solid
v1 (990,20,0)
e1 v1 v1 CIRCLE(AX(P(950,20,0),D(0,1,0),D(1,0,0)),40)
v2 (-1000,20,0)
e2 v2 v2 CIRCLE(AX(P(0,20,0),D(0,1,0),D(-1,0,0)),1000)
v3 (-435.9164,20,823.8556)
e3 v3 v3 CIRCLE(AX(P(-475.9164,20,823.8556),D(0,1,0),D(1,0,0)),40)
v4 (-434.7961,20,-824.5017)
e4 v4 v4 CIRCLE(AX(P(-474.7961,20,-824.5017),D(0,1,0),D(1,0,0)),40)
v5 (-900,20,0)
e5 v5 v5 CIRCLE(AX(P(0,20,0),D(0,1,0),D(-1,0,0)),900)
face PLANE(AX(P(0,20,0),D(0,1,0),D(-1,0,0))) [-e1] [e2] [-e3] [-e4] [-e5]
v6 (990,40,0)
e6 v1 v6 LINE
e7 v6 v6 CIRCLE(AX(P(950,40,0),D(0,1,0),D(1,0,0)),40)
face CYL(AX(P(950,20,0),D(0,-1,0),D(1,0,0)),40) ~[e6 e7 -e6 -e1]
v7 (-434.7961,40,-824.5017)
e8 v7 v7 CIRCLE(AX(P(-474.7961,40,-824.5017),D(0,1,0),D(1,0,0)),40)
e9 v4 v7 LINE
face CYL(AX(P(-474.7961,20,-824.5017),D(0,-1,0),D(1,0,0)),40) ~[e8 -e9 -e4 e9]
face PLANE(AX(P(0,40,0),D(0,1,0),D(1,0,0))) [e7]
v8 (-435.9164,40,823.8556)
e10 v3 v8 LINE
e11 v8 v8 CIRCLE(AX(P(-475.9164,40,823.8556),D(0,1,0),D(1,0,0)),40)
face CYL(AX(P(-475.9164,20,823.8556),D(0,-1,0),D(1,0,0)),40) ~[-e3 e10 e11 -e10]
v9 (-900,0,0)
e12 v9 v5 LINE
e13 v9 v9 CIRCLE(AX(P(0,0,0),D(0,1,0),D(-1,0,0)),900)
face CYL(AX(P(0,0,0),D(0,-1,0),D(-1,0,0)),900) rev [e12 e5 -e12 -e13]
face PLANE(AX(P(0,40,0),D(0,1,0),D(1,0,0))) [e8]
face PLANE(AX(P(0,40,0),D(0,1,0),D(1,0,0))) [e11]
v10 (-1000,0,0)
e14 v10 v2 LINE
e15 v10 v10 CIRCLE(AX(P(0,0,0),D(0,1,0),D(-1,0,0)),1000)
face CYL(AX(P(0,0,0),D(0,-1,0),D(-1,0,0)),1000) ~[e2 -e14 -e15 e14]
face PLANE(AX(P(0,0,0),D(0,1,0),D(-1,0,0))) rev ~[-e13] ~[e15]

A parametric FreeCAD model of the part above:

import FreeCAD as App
import Part
import Sketcher

V = App.Vector
Q = App.Units.Quantity

doc = App.newDocument("Part")
params = doc.addObject("Spreadsheet::Sheet", "Params")
for row, (alias, value) in enumerate([
    ("sketch1_diameter", "1800 mm"),
    ("sketch1_diameter2", "2000 mm"),
    ("pad1_length", "20 mm"),
    ("sketch2_diameter", "80 mm"),
    ("pad2_length", "20 mm"),
], start=1):
    params.set(f"A{row}", alias)
    params.set(f"B{row}", "=" + value)
    params.setAlias(f"B{row}", alias)

body = doc.addObject("PartDesign::Body", "Body")

# Sketch on XZ plane
sketch1 = body.newObject("Sketcher::SketchObject", "Sketch")
sketch1.AttachmentSupport = (doc.getObject("XZ_Plane"), [""])
sketch1.MapMode = "FlatFace"
sketch1.addGeometry([
    Part.Circle(V(0, 0, 0), V(0, 0, 1), 1000),
    Part.Circle(V(0, 0, 0), V(0, 0, 1), 900),
], False)
sketch1.addConstraint([
    Sketcher.Constraint("Coincident", 0, 3, -1, 1),
    Sketcher.Constraint("Coincident", 1, 3, -1, 1),
    Sketcher.Constraint("Diameter", 1, Q("1800 mm")),
    Sketcher.Constraint("Diameter", 0, Q("2000 mm")),
])
sketch1.setExpression("Constraints[2]", "Params.sketch1_diameter")
sketch1.setExpression("Constraints[3]", "Params.sketch1_diameter2")
pad1 = body.newObject("PartDesign::Pad", "Pad")
pad1.Profile = sketch1
pad1.setExpression("Length", "Params.pad1_length")
pad1.Reversed = True

# Sketch on XZ plane
sketch2 = body.newObject("Sketcher::SketchObject", "Sketch001")
sketch2.AttachmentSupport = (doc.getObject("XZ_Plane"), [""])
sketch2.MapMode = "FlatFace"
sketch2.AttachmentOffset = App.Placement(V(0, 0, -20), App.Rotation())
sketch2.addGeometry([
    Part.Circle(V(950, 0, 0), V(0, 0, 1), 40),
    Part.Circle(V(-475, -825, 0), V(0, 0, 1), 40),
    Part.Circle(V(-476, 824, 0), V(0, 0, 1), 40),
], False)
sketch2.addConstraint([
    Sketcher.Constraint("Equal", 0, 1),
    Sketcher.Constraint("Equal", 1, 2),
    Sketcher.Constraint("PointOnObject", 0, 3, -1),
    Sketcher.Constraint("Diameter", 0, Q("80 mm")),
    Sketcher.Constraint("DistanceX", -1, 1, 0, 3, Q("950 mm")),
    Sketcher.Constraint("DistanceX", 1, 3, -1, 1, Q("474.796 mm")),
    Sketcher.Constraint("DistanceY", 1, 3, -1, 1, Q("824.5017 mm")),
    Sketcher.Constraint("DistanceX", 2, 3, -1, 1, Q("475.9164 mm")),
    Sketcher.Constraint("DistanceY", -1, 1, 2, 3, Q("823.8556 mm")),
])
sketch2.setExpression("Constraints[3]", "Params.sketch2_diameter")
pad2 = body.newObject("PartDesign::Pad", "Pad001")
pad2.Profile = sketch2
pad2.setExpression("Length", "Params.pad2_length")
pad2.Reversed = True

doc.recompute()
